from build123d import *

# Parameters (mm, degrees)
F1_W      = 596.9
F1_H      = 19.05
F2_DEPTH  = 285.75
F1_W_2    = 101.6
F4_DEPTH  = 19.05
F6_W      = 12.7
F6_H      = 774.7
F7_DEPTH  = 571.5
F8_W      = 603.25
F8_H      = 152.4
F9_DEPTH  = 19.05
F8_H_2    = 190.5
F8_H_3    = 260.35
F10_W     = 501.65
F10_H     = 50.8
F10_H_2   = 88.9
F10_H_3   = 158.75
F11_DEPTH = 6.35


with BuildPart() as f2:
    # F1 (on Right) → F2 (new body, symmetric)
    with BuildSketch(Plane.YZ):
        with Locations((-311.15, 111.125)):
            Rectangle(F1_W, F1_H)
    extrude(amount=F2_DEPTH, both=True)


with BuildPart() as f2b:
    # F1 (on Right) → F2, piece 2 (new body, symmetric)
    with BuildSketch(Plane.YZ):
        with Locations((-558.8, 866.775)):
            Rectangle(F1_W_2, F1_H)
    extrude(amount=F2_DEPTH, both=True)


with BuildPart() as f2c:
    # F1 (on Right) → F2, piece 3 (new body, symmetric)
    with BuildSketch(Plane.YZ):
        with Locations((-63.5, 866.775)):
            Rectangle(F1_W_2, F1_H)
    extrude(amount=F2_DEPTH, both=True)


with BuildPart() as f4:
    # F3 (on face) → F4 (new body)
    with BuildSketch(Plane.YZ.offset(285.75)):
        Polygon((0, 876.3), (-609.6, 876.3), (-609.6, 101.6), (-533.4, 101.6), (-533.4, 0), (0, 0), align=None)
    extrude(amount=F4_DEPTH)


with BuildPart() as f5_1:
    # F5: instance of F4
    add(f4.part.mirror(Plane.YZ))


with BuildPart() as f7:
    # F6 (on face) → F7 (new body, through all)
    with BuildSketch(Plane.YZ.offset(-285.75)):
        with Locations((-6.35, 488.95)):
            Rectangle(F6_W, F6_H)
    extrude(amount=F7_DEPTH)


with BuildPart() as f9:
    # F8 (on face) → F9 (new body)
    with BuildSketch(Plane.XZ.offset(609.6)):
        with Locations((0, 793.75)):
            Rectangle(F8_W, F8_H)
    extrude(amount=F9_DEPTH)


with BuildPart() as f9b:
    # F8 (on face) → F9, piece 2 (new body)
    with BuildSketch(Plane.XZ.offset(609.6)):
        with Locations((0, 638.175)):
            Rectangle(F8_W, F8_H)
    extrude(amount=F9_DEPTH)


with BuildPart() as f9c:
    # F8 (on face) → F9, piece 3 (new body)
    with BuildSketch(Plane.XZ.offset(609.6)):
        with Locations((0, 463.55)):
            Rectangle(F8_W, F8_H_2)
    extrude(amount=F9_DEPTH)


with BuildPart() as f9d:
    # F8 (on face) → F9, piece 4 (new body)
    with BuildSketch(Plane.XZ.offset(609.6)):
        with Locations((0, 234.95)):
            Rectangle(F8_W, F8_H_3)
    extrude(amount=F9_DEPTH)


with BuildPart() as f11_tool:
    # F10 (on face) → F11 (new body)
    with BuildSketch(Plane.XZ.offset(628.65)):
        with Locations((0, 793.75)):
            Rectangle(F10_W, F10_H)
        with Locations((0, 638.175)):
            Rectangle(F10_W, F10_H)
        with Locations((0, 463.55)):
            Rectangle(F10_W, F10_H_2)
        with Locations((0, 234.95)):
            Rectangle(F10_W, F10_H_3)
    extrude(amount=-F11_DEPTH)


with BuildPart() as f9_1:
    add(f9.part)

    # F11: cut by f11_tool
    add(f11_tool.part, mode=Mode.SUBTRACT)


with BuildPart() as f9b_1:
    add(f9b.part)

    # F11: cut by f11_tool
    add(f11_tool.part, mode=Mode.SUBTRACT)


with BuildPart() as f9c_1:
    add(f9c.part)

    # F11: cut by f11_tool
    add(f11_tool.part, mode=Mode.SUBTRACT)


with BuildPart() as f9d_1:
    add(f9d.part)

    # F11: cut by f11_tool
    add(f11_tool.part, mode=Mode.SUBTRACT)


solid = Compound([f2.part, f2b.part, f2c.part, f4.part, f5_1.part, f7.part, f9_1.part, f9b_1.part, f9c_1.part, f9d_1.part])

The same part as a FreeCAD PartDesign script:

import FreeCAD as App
import Part
import Sketcher

V = App.Vector
Q = App.Units.Quantity

doc = App.newDocument("Part")
params = doc.addObject("Spreadsheet::Sheet", "Params")
for row, (alias, value) in enumerate([
    ("sketch1_width", "23.5 in"),
    ("sketch1_height", "0.75 in"),
    ("pad1_length", "22.5 in"),
    ("sketch2_width", "4 in"),
    ("sketch2_height", "0.75 in"),
    ("pad2_length", "22.5 in"),
    ("sketch3_width", "4 in"),
    ("sketch3_height", "0.75 in"),
    ("pad3_length", "22.5 in"),
    ("sketch4_width", "24 in"),
    ("sketch4_width2", "3 in"),
    ("sketch4_height", "4 in"),
    ("sketch4_height2", "30.5 in"),
    ("pad4_length", "0.75 in"),
    ("sketch5_width", "0.5 in"),
    ("sketch5_height", "30.5 in"),
    ("pad5_length", "22.5 in"),
    ("sketch6_height", "6 in"),
    ("sketch6_width", "23.75 in"),
    ("pad6_length", "0.75 in"),
    ("sketch7_height", "6 in"),
    ("sketch7_width", "23.75 in"),
    ("pad7_length", "0.75 in"),
    ("sketch8_height", "7.5 in"),
    ("sketch8_width", "23.75 in"),
    ("pad8_length", "0.75 in"),
    ("sketch9_width", "23.75 in"),
    ("sketch9_height", "10.25 in"),
    ("pad9_length", "0.75 in"),
    ("sketch10_height", "2 in"),
    ("sketch10_height2", "3.5 in"),
    ("sketch10_width", "19.75 in"),
    ("sketch10_height3", "6.25 in"),
    ("pad10_length", "0.25 in"),
], start=1):
    params.set(f"A{row}", alias)
    params.set(f"B{row}", "=" + value)
    params.setAlias(f"B{row}", alias)

body = doc.addObject("PartDesign::Body", "Body")

# Sketch on YZ plane
sketch1 = doc.addObject("Sketcher::SketchObject", "Sketch")
body.addObject(sketch1)
sketch1.AttachmentSupport = (doc.YZ_Plane, [""])
sketch1.MapMode = "FlatFace"
sketch1.addGeometry([
    Part.LineSegment(V(-609.6, 120.65, 0), V(-609.6, 101.6, 0)),
    Part.LineSegment(V(-609.6, 101.6, 0), V(-12.7, 101.6, 0)),
    Part.LineSegment(V(-12.7, 101.6, 0), V(-12.7, 120.65, 0)),
    Part.LineSegment(V(-12.7, 120.65, 0), V(-609.6, 120.65, 0)),
], False)
sketch1.addConstraint([
    Sketcher.Constraint("Coincident", 0, 2, 1, 1),
    Sketcher.Constraint("Coincident", 1, 2, 2, 1),
    Sketcher.Constraint("Coincident", 2, 2, 3, 1),
    Sketcher.Constraint("Coincident", 3, 2, 0, 1),
    Sketcher.Constraint("Vertical", 0),
    Sketcher.Constraint("Horizontal", 1),
    Sketcher.Constraint("Vertical", 2),
    Sketcher.Constraint("Horizontal", 3),
    Sketcher.Constraint("DistanceX", 1, 1, 1, 2, Q("23.5 in")),
    Sketcher.Constraint("DistanceX", 0, 2, -1, 1, Q("24 in")),
    Sketcher.Constraint("DistanceY", -1, 1, 0, 2, Q("4 in")),
    Sketcher.Constraint("DistanceY", 0, 2, 0, 1, Q("0.75 in")),
])
sketch1.setExpression("Constraints[8]", "Params.sketch1_width")
sketch1.setExpression("Constraints[11]", "Params.sketch1_height")
pad1 = doc.addObject("PartDesign::Pad", "Pad")
body.addObject(pad1)
pad1.Profile = sketch1
pad1.setExpression("Length", "Params.pad1_length")
pad1.Midplane = True
body2 = doc.addObject("PartDesign::Body", "Body001")

# Sketch on YZ plane
sketch2 = doc.addObject("Sketcher::SketchObject", "Sketch001")
body2.addObject(sketch2)
sketch2.AttachmentSupport = (doc.getObject("YZ_Plane001"), [""])
sketch2.MapMode = "FlatFace"
sketch2.addGeometry([
    Part.LineSegment(V(-609.6, 876.3, 0), V(-609.6, 857.25, 0)),
    Part.LineSegment(V(-609.6, 857.25, 0), V(-508, 857.25, 0)),
    Part.LineSegment(V(-508, 857.25, 0), V(-508, 876.3, 0)),
    Part.LineSegment(V(-508, 876.3, 0), V(-609.6, 876.3, 0)),
], False)
sketch2.addConstraint([
    Sketcher.Constraint("Coincident", 0, 2, 1, 1),
    Sketcher.Constraint("Coincident", 1, 2, 2, 1),
    Sketcher.Constraint("Coincident", 2, 2, 3, 1),
    Sketcher.Constraint("Coincident", 3, 2, 0, 1),
    Sketcher.Constraint("Vertical", 0),
    Sketcher.Constraint("Horizontal", 1),
    Sketcher.Constraint("Vertical", 2),
    Sketcher.Constraint("Horizontal", 3),
    Sketcher.Constraint("DistanceX", 1, 1, 1, 2, Q("4 in")),
    Sketcher.Constraint("DistanceX", 0, 2, -1, 1, Q("24 in")),
    Sketcher.Constraint("DistanceY", 0, 2, 0, 1, Q("0.75 in")),
    Sketcher.Constraint("DistanceY", -1, 1, 2, 2, Q("34.5 in")),
])
sketch2.setExpression("Constraints[8]", "Params.sketch2_width")
sketch2.setExpression("Constraints[10]", "Params.sketch2_height")
pad2 = doc.addObject("PartDesign::Pad", "Pad001")
body2.addObject(pad2)
pad2.Profile = sketch2
pad2.setExpression("Length", "Params.pad2_length")
pad2.Midplane = True
body3 = doc.addObject("PartDesign::Body", "Body002")

# Sketch on YZ plane
sketch3 = doc.addObject("Sketcher::SketchObject", "Sketch002")
body3.addObject(sketch3)
sketch3.AttachmentSupport = (doc.getObject("YZ_Plane002"), [""])
sketch3.MapMode = "FlatFace"
sketch3.addGeometry([
    Part.LineSegment(V(-114.3, 876.3, 0), V(-114.3, 857.25, 0)),
    Part.LineSegment(V(-114.3, 857.25, 0), V(-12.7, 857.25, 0)),
    Part.LineSegment(V(-12.7, 857.25, 0), V(-12.7, 876.3, 0)),
    Part.LineSegment(V(-12.7, 876.3, 0), V(-114.3, 876.3, 0)),
], False)
sketch3.addConstraint([
    Sketcher.Constraint("Coincident", 0, 2, 1, 1),
    Sketcher.Constraint("Coincident", 1, 2, 2, 1),
    Sketcher.Constraint("Coincident", 2, 2, 3, 1),
    Sketcher.Constraint("Coincident", 3, 2, 0, 1),
    Sketcher.Constraint("Vertical", 0),
    Sketcher.Constraint("Horizontal", 1),
    Sketcher.Constraint("Vertical", 2),
    Sketcher.Constraint("Horizontal", 3),
    Sketcher.Constraint("DistanceX", 1, 1, 1, 2, Q("4 in")),
    Sketcher.Constraint("DistanceY", 0, 2, 0, 1, Q("0.75 in")),
    Sketcher.Constraint("DistanceX", 0, 2, -1, 1, Q("4.5 in")),
    Sketcher.Constraint("DistanceY", -1, 1, 2, 2, Q("34.5 in")),
])
sketch3.setExpression("Constraints[8]", "Params.sketch3_width")
sketch3.setExpression("Constraints[9]", "Params.sketch3_height")
pad3 = doc.addObject("PartDesign::Pad", "Pad002")
body3.addObject(pad3)
pad3.Profile = sketch3
pad3.setExpression("Length", "Params.pad3_length")
pad3.Midplane = True
body4 = doc.addObject("PartDesign::Body", "Body003")

# Sketch on YZ plane
sketch4 = doc.addObject("Sketcher::SketchObject", "Sketch003")
body4.addObject(sketch4)
sketch4.AttachmentSupport = (doc.getObject("YZ_Plane003"), [""])
sketch4.MapMode = "FlatFace"
sketch4.AttachmentOffset = App.Placement(V(0, 0, 11.25 * 25.4), App.Rotation())
sketch4.addGeometry([
    Part.LineSegment(V(0, 876.3, 0), V(-609.6, 876.3, 0)),  # 0
    Part.LineSegment(V(-609.6, 876.3, 0), V(-609.6, 101.6, 0)),  # 1
    Part.LineSegment(V(-609.6, 101.6, 0), V(-533.4, 101.6, 0)),  # 2
    Part.LineSegment(V(-533.4, 101.6, 0), V(-533.4, 0, 0)),  # 3
    Part.LineSegment(V(-533.4, 0, 0), V(0, 0, 0)),  # 4
    Part.LineSegment(V(0, 0, 0), V(0, 876.3, 0)),  # 5
], False)
sketch4.addConstraint([
    Sketcher.Constraint("Coincident", 0, 2, 1, 1),
    Sketcher.Constraint("Coincident", 1, 2, 2, 1),
    Sketcher.Constraint("Coincident", 2, 2, 3, 1),
    Sketcher.Constraint("Coincident", 3, 2, 4, 1),
    Sketcher.Constraint("Coincident", 4, 2, 5, 1),
    Sketcher.Constraint("Coincident", 5, 2, 0, 1),
    Sketcher.Constraint("Horizontal", 0),
    Sketcher.Constraint("Vertical", 1),
    Sketcher.Constraint("Horizontal", 2),
    Sketcher.Constraint("Vertical", 3),
    Sketcher.Constraint("Horizontal", 4),
    Sketcher.Constraint("Vertical", 5),
    Sketcher.Constraint("Coincident", 4, 2, -1, 1),
    Sketcher.Constraint("DistanceX", 0, 2, 0, 1, Q("24 in")),
    Sketcher.Constraint("DistanceX", 2, 1, 2, 2, Q("3 in")),
    Sketcher.Constraint("DistanceY", 3, 2, 3, 1, Q("4 in")),
    Sketcher.Constraint("DistanceY", 1, 2, 1, 1, Q("30.5 in")),
])
sketch4.setExpression("Constraints[13]", "Params.sketch4_width")
sketch4.setExpression("Constraints[14]", "Params.sketch4_width2")
sketch4.setExpression("Constraints[15]", "Params.sketch4_height")
sketch4.setExpression("Constraints[16]", "Params.sketch4_height2")
pad4 = doc.addObject("PartDesign::Pad", "Pad003")
body4.addObject(pad4)
pad4.Profile = sketch4
pad4.setExpression("Length", "Params.pad4_length")
body5 = doc.addObject("PartDesign::Body", "Body004")
doc.recompute()

mirroring = doc.addObject("Part::Mirroring", "Mirroring")
mirroring.Source = body4
mirroring.Base = V(0, 0, 0)
mirroring.Normal = V(1, 0, 0)
body5.BaseFeature = mirroring
doc.recompute()
body6 = doc.addObject("PartDesign::Body", "Body005")

# Sketch on YZ plane
sketch5 = doc.addObject("Sketcher::SketchObject", "Sketch004")
body6.addObject(sketch5)
sketch5.AttachmentSupport = (doc.getObject("YZ_Plane005"), [""])
sketch5.MapMode = "FlatFace"
sketch5.AttachmentOffset = App.Placement(V(0, 0, -11.25 * 25.4), App.Rotation())
sketch5.addGeometry([
    Part.LineSegment(V(-12.7, 876.3, 0), V(-12.7, 101.6, 0)),
    Part.LineSegment(V(-12.7, 101.6, 0), V(0, 101.6, 0)),
    Part.LineSegment(V(0, 101.6, 0), V(0, 876.3, 0)),
    Part.LineSegment(V(0, 876.3, 0), V(-12.7, 876.3, 0)),
], False)
sketch5.addConstraint([
    Sketcher.Constraint("Coincident", 0, 2, 1, 1),
    Sketcher.Constraint("Coincident", 1, 2, 2, 1),
    Sketcher.Constraint("Coincident", 2, 2, 3, 1),
    Sketcher.Constraint("Coincident", 3, 2, 0, 1),
    Sketcher.Constraint("Vertical", 0),
    Sketcher.Constraint("Horizontal", 1),
    Sketcher.Constraint("Vertical", 2),
    Sketcher.Constraint("Horizontal", 3),
    Sketcher.Constraint("PointOnObject", 1, 2, -2),
    Sketcher.Constraint("DistanceX", 1, 1, 1, 2, Q("0.5 in")),
    Sketcher.Constraint("DistanceY", 0, 2, 0, 1, Q("30.5 in")),
    Sketcher.Constraint("DistanceY", -1, 1, 0, 2, Q("4 in")),
])
sketch5.setExpression("Constraints[9]", "Params.sketch5_width")
sketch5.setExpression("Constraints[10]", "Params.sketch5_height")
pad5 = doc.addObject("PartDesign::Pad", "Pad004")
body6.addObject(pad5)
pad5.Profile = sketch5
pad5.setExpression("Length", "Params.pad5_length")
body7 = doc.addObject("PartDesign::Body", "Body006")

# Sketch on XZ plane
sketch6 = doc.addObject("Sketcher::SketchObject", "Sketch005")
body7.addObject(sketch6)
sketch6.AttachmentSupport = (doc.getObject("XZ_Plane006"), [""])
sketch6.MapMode = "FlatFace"
sketch6.AttachmentOffset = App.Placement(V(0, 0, 24 * 25.4), App.Rotation())
sketch6.addGeometry([
    Part.LineSegment(V(-301.625, 869.95, 0), V(-301.625, 717.55, 0)),
    Part.LineSegment(V(-301.625, 717.55, 0), V(301.625, 717.55, 0)),
    Part.LineSegment(V(301.625, 717.55, 0), V(301.625, 869.95, 0)),
    Part.LineSegment(V(301.625, 869.95, 0), V(-301.625, 869.95, 0)),
], False)
sketch6.addConstraint([
    Sketcher.Constraint("Coincident", 0, 2, 1, 1),
    Sketcher.Constraint("Coincident", 1, 2, 2, 1),
    Sketcher.Constraint("Coincident", 2, 2, 3, 1),
    Sketcher.Constraint("Coincident", 3, 2, 0, 1),
    Sketcher.Constraint("Vertical", 0),
    Sketcher.Constraint("Horizontal", 1),
    Sketcher.Constraint("Vertical", 2),
    Sketcher.Constraint("Horizontal", 3),
    Sketcher.Constraint("DistanceY", 0, 2, 0, 1, Q("6 in")),
    Sketcher.Constraint("DistanceX", 1, 1, 1, 2, Q("23.75 in")),
    Sketcher.Constraint("DistanceY", -1, 1, 0, 2, Q("28.25 in")),
    Sketcher.Constraint("DistanceX", 0, 2, -1, 1, Q("11.875 in")),
])
sketch6.setExpression("Constraints[8]", "Params.sketch6_height")
sketch6.setExpression("Constraints[9]", "Params.sketch6_width")
pad6 = doc.addObject("PartDesign::Pad", "Pad005")
body7.addObject(pad6)
pad6.Profile = sketch6
pad6.setExpression("Length", "Params.pad6_length")
body8 = doc.addObject("PartDesign::Body", "Body007")

# Sketch on XZ plane
sketch7 = doc.addObject("Sketcher::SketchObject", "Sketch006")
body8.addObject(sketch7)
sketch7.AttachmentSupport = (doc.getObject("XZ_Plane007"), [""])
sketch7.MapMode = "FlatFace"
sketch7.AttachmentOffset = App.Placement(V(0, 0, 24 * 25.4), App.Rotation())
sketch7.addGeometry([
    Part.LineSegment(V(-301.625, 714.375, 0), V(-301.625, 561.975, 0)),
    Part.LineSegment(V(-301.625, 561.975, 0), V(301.625, 561.975, 0)),
    Part.LineSegment(V(301.625, 561.975, 0), V(301.625, 714.375, 0)),
    Part.LineSegment(V(301.625, 714.375, 0), V(-301.625, 714.375, 0)),
], False)
sketch7.addConstraint([
    Sketcher.Constraint("Coincident", 0, 2, 1, 1),
    Sketcher.Constraint("Coincident", 1, 2, 2, 1),
    Sketcher.Constraint("Coincident", 2, 2, 3, 1),
    Sketcher.Constraint("Coincident", 3, 2, 0, 1),
    Sketcher.Constraint("Vertical", 0),
    Sketcher.Constraint("Horizontal", 1),
    Sketcher.Constraint("Vertical", 2),
    Sketcher.Constraint("Horizontal", 3),
    Sketcher.Constraint("DistanceY", 0, 2, 0, 1, Q("6 in")),
    Sketcher.Constraint("DistanceX", 1, 1, 1, 2, Q("23.75 in")),
    Sketcher.Constraint("DistanceX", 0, 2, -1, 1, Q("11.875 in")),
    Sketcher.Constraint("DistanceY", -1, 1, 0, 2, Q("22.125 in")),
])
sketch7.setExpression("Constraints[8]", "Params.sketch7_height")
sketch7.setExpression("Constraints[9]", "Params.sketch7_width")
pad7 = doc.addObject("PartDesign::Pad", "Pad006")
body8.addObject(pad7)
pad7.Profile = sketch7
pad7.setExpression("Length", "Params.pad7_length")
body9 = doc.addObject("PartDesign::Body", "Body008")

# Sketch on XZ plane
sketch8 = doc.addObject("Sketcher::SketchObject", "Sketch007")
body9.addObject(sketch8)
sketch8.AttachmentSupport = (doc.getObject("XZ_Plane008"), [""])
sketch8.MapMode = "FlatFace"
sketch8.AttachmentOffset = App.Placement(V(0, 0, 24 * 25.4), App.Rotation())
sketch8.addGeometry([
    Part.LineSegment(V(-301.625, 558.8, 0), V(-301.625, 368.3, 0)),
    Part.LineSegment(V(-301.625, 368.3, 0), V(301.625, 368.3, 0)),
    Part.LineSegment(V(301.625, 368.3, 0), V(301.625, 558.8, 0)),
    Part.LineSegment(V(301.625, 558.8, 0), V(-301.625, 558.8, 0)),
], False)
sketch8.addConstraint([
    Sketcher.Constraint("Coincident", 0, 2, 1, 1),
    Sketcher.Constraint("Coincident", 1, 2, 2, 1),
    Sketcher.Constraint("Coincident", 2, 2, 3, 1),
    Sketcher.Constraint("Coincident", 3, 2, 0, 1),
    Sketcher.Constraint("Vertical", 0),
    Sketcher.Constraint("Horizontal", 1),
    Sketcher.Constraint("Vertical", 2),
    Sketcher.Constraint("Horizontal", 3),
    Sketcher.Constraint("DistanceY", 0, 2, 0, 1, Q("7.5 in")),
    Sketcher.Constraint("DistanceY", -1, 1, 2, 2, Q("22 in")),
    Sketcher.Constraint("DistanceX", 1, 1, 1, 2, Q("23.75 in")),
    Sketcher.Constraint("DistanceX", 0, 2, -1, 1, Q("11.875 in")),
])
sketch8.setExpression("Constraints[8]", "Params.sketch8_height")
sketch8.setExpression("Constraints[10]", "Params.sketch8_width")
pad8 = doc.addObject("PartDesign::Pad", "Pad007")
body9.addObject(pad8)
pad8.Profile = sketch8
pad8.setExpression("Length", "Params.pad8_length")
body10 = doc.addObject("PartDesign::Body", "Body009")

# Sketch on XZ plane
sketch9 = doc.addObject("Sketcher::SketchObject", "Sketch008")
body10.addObject(sketch9)
sketch9.AttachmentSupport = (doc.getObject("XZ_Plane009"), [""])
sketch9.MapMode = "FlatFace"
sketch9.AttachmentOffset = App.Placement(V(0, 0, 24 * 25.4), App.Rotation())
sketch9.addGeometry([
    Part.LineSegment(V(-301.625, 365.125, 0), V(-301.625, 104.775, 0)),
    Part.LineSegment(V(-301.625, 104.775, 0), V(301.625, 104.775, 0)),
    Part.LineSegment(V(301.625, 104.775, 0), V(301.625, 365.125, 0)),
    Part.LineSegment(V(301.625, 365.125, 0), V(-301.625, 365.125, 0)),
], False)
sketch9.addConstraint([
    Sketcher.Constraint("Coincident", 0, 2, 1, 1),
    Sketcher.Constraint("Coincident", 1, 2, 2, 1),
    Sketcher.Constraint("Coincident", 2, 2, 3, 1),
    Sketcher.Constraint("Coincident", 3, 2, 0, 1),
    Sketcher.Constraint("Vertical", 0),
    Sketcher.Constraint("Horizontal", 1),
    Sketcher.Constraint("Vertical", 2),
    Sketcher.Constraint("Horizontal", 3),
    Sketcher.Constraint("DistanceX", 1, 1, 1, 2, Q("23.75 in")),
    Sketcher.Constraint("DistanceY", 0, 2, 0, 1, Q("10.25 in")),
    Sketcher.Constraint("DistanceX", 0, 2, -1, 1, Q("11.875 in")),
    Sketcher.Constraint("DistanceY", -1, 1, 0, 2, Q("4.125 in")),
])
sketch9.setExpression("Constraints[8]", "Params.sketch9_width")
sketch9.setExpression("Constraints[9]", "Params.sketch9_height")
pad9 = doc.addObject("PartDesign::Pad", "Pad008")
body10.addObject(pad9)
pad9.Profile = sketch9
pad9.setExpression("Length", "Params.pad9_length")
body11 = doc.addObject("PartDesign::Body", "Body010")
body11.AllowCompound = True

# Sketch on XZ plane
sketch10 = doc.addObject("Sketcher::SketchObject", "Sketch009")
body11.addObject(sketch10)
sketch10.AttachmentSupport = (doc.getObject("XZ_Plane010"), [""])
sketch10.MapMode = "FlatFace"
sketch10.AttachmentOffset = App.Placement(V(0, 0, 24.75 * 25.4), App.Rotation())
sketch10.addGeometry([
    Part.LineSegment(V(-250.825, 819.15, 0), V(-250.825, 768.35, 0)),  # 0
    Part.LineSegment(V(-250.825, 768.35, 0), V(250.825, 768.35, 0)),  # 1
    Part.LineSegment(V(250.825, 768.35, 0), V(250.825, 819.15, 0)),  # 2
    Part.LineSegment(V(250.825, 819.15, 0), V(-250.825, 819.15, 0)),  # 3
    Part.LineSegment(V(-250.825, 663.575, 0), V(-250.825, 612.775, 0)),  # 4
    Part.LineSegment(V(-250.825, 612.775, 0), V(250.825, 612.775, 0)),  # 5
    Part.LineSegment(V(250.825, 612.775, 0), V(250.825, 663.575, 0)),  # 6
    Part.LineSegment(V(250.825, 663.575, 0), V(-250.825, 663.575, 0)),  # 7
    Part.LineSegment(V(-250.825, 508, 0), V(-250.825, 419.1, 0)),  # 8
    Part.LineSegment(V(-250.825, 419.1, 0), V(250.825, 419.1, 0)),  # 9
    Part.LineSegment(V(250.825, 419.1, 0), V(250.825, 508, 0)),  # 10
    Part.LineSegment(V(250.825, 508, 0), V(-250.825, 508, 0)),  # 11
    Part.LineSegment(V(-250.825, 314.325, 0), V(-250.825, 155.575, 0)),  # 12
    Part.LineSegment(V(-250.825, 155.575, 0), V(250.825, 155.575, 0)),  # 13
    Part.LineSegment(V(250.825, 155.575, 0), V(250.825, 314.325, 0)),  # 14
    Part.LineSegment(V(250.825, 314.325, 0), V(-250.825, 314.325, 0)),  # 15
], False)
sketch10.addConstraint([
    Sketcher.Constraint("Coincident", 0, 2, 1, 1),
    Sketcher.Constraint("Coincident", 1, 2, 2, 1),
    Sketcher.Constraint("Coincident", 2, 2, 3, 1),
    Sketcher.Constraint("Coincident", 3, 2, 0, 1),
    Sketcher.Constraint("Coincident", 4, 2, 5, 1),
    Sketcher.Constraint("Coincident", 5, 2, 6, 1),
    Sketcher.Constraint("Coincident", 6, 2, 7, 1),
    Sketcher.Constraint("Coincident", 7, 2, 4, 1),
    Sketcher.Constraint("Coincident", 8, 2, 9, 1),
    Sketcher.Constraint("Coincident", 9, 2, 10, 1),
    Sketcher.Constraint("Coincident", 10, 2, 11, 1),
    Sketcher.Constraint("Coincident", 11, 2, 8, 1),
    Sketcher.Constraint("Coincident", 12, 2, 13, 1),
    Sketcher.Constraint("Coincident", 13, 2, 14, 1),
    Sketcher.Constraint("Coincident", 14, 2, 15, 1),
    Sketcher.Constraint("Coincident", 15, 2, 12, 1),
    Sketcher.Constraint("Vertical", 0),
    Sketcher.Constraint("Horizontal", 1),
    Sketcher.Constraint("Vertical", 2),
    Sketcher.Constraint("Horizontal", 3),
    Sketcher.Constraint("Vertical", 4),
    Sketcher.Constraint("Horizontal", 5),
    Sketcher.Constraint("Vertical", 6),
    Sketcher.Constraint("Horizontal", 7),
    Sketcher.Constraint("Vertical", 8),
    Sketcher.Constraint("Horizontal", 9),
    Sketcher.Constraint("Vertical", 10),
    Sketcher.Constraint("Horizontal", 11),
    Sketcher.Constraint("Vertical", 12),
    Sketcher.Constraint("Horizontal", 13),
    Sketcher.Constraint("Vertical", 14),
    Sketcher.Constraint("Horizontal", 15),
    Sketcher.Constraint("Vertical", 3, 2, 4, 2),
    Sketcher.Constraint("Vertical", 2, 2, 5, 2),
    Sketcher.Constraint("Vertical", 7, 2, 8, 2),
    Sketcher.Constraint("Vertical", 6, 2, 9, 2),
    Sketcher.Constraint("Vertical", 11, 2, 12, 2),
    Sketcher.Constraint("Vertical", 10, 2, 13, 2),
    Sketcher.Constraint("Equal", 2, 4),
    Sketcher.Constraint("DistanceY", 0, 2, 0, 1, Q("2 in")),
    Sketcher.Constraint("DistanceY", 8, 2, 8, 1, Q("3.5 in")),
    Sketcher.Constraint("DistanceY", -1, 1, 10, 2, Q("20 in")),
    Sketcher.Constraint("DistanceY", 12, 2, 4, 2, Q("18 in")),
    Sketcher.Constraint("DistanceX", 1, 1, 1, 2, Q("19.75 in")),
    Sketcher.Constraint("DistanceY", 12, 2, 12, 1, Q("6.25 in")),
    Sketcher.Constraint("DistanceY", -1, 1, 0, 2, Q("30.25 in")),
    Sketcher.Constraint("DistanceX", 0, 2, -1, 1, Q("9.875 in")),
    Sketcher.Constraint("DistanceY", -1, 1, 4, 2, Q("24.125 in")),
])
sketch10.setExpression("Constraints[39]", "Params.sketch10_height")
sketch10.setExpression("Constraints[40]", "Params.sketch10_height2")
sketch10.setExpression("Constraints[43]", "Params.sketch10_width")
sketch10.setExpression("Constraints[44]", "Params.sketch10_height3")
pad10 = doc.addObject("PartDesign::Pad", "Pad009")
body11.addObject(pad10)
pad10.Profile = sketch10
pad10.setExpression("Length", "Params.pad10_length")
pad10.Reversed = True
doc.recompute()

body12 = doc.addObject("PartDesign::Body", "Body011")
body12.BaseFeature = body11
boolean = doc.addObject("PartDesign::Boolean", "Boolean")
body7.addObject(boolean)
boolean.Type = "Cut"
boolean.addObjects([body12])
doc.recompute()

body13 = doc.addObject("PartDesign::Body", "Body012")
body13.BaseFeature = body11
boolean2 = doc.addObject("PartDesign::Boolean", "Boolean001")
body8.addObject(boolean2)
boolean2.Type = "Cut"
boolean2.addObjects([body13])
doc.recompute()

body14 = doc.addObject("PartDesign::Body", "Body013")
body14.BaseFeature = body11
boolean3 = doc.addObject("PartDesign::Boolean", "Boolean002")
body9.addObject(boolean3)
boolean3.Type = "Cut"
boolean3.addObjects([body14])
doc.recompute()

boolean4 = doc.addObject("PartDesign::Boolean", "Boolean003")
body10.addObject(boolean4)
boolean4.Type = "Cut"
boolean4.addObjects([body11])
mirroring.Visibility = False

doc.recompute()
